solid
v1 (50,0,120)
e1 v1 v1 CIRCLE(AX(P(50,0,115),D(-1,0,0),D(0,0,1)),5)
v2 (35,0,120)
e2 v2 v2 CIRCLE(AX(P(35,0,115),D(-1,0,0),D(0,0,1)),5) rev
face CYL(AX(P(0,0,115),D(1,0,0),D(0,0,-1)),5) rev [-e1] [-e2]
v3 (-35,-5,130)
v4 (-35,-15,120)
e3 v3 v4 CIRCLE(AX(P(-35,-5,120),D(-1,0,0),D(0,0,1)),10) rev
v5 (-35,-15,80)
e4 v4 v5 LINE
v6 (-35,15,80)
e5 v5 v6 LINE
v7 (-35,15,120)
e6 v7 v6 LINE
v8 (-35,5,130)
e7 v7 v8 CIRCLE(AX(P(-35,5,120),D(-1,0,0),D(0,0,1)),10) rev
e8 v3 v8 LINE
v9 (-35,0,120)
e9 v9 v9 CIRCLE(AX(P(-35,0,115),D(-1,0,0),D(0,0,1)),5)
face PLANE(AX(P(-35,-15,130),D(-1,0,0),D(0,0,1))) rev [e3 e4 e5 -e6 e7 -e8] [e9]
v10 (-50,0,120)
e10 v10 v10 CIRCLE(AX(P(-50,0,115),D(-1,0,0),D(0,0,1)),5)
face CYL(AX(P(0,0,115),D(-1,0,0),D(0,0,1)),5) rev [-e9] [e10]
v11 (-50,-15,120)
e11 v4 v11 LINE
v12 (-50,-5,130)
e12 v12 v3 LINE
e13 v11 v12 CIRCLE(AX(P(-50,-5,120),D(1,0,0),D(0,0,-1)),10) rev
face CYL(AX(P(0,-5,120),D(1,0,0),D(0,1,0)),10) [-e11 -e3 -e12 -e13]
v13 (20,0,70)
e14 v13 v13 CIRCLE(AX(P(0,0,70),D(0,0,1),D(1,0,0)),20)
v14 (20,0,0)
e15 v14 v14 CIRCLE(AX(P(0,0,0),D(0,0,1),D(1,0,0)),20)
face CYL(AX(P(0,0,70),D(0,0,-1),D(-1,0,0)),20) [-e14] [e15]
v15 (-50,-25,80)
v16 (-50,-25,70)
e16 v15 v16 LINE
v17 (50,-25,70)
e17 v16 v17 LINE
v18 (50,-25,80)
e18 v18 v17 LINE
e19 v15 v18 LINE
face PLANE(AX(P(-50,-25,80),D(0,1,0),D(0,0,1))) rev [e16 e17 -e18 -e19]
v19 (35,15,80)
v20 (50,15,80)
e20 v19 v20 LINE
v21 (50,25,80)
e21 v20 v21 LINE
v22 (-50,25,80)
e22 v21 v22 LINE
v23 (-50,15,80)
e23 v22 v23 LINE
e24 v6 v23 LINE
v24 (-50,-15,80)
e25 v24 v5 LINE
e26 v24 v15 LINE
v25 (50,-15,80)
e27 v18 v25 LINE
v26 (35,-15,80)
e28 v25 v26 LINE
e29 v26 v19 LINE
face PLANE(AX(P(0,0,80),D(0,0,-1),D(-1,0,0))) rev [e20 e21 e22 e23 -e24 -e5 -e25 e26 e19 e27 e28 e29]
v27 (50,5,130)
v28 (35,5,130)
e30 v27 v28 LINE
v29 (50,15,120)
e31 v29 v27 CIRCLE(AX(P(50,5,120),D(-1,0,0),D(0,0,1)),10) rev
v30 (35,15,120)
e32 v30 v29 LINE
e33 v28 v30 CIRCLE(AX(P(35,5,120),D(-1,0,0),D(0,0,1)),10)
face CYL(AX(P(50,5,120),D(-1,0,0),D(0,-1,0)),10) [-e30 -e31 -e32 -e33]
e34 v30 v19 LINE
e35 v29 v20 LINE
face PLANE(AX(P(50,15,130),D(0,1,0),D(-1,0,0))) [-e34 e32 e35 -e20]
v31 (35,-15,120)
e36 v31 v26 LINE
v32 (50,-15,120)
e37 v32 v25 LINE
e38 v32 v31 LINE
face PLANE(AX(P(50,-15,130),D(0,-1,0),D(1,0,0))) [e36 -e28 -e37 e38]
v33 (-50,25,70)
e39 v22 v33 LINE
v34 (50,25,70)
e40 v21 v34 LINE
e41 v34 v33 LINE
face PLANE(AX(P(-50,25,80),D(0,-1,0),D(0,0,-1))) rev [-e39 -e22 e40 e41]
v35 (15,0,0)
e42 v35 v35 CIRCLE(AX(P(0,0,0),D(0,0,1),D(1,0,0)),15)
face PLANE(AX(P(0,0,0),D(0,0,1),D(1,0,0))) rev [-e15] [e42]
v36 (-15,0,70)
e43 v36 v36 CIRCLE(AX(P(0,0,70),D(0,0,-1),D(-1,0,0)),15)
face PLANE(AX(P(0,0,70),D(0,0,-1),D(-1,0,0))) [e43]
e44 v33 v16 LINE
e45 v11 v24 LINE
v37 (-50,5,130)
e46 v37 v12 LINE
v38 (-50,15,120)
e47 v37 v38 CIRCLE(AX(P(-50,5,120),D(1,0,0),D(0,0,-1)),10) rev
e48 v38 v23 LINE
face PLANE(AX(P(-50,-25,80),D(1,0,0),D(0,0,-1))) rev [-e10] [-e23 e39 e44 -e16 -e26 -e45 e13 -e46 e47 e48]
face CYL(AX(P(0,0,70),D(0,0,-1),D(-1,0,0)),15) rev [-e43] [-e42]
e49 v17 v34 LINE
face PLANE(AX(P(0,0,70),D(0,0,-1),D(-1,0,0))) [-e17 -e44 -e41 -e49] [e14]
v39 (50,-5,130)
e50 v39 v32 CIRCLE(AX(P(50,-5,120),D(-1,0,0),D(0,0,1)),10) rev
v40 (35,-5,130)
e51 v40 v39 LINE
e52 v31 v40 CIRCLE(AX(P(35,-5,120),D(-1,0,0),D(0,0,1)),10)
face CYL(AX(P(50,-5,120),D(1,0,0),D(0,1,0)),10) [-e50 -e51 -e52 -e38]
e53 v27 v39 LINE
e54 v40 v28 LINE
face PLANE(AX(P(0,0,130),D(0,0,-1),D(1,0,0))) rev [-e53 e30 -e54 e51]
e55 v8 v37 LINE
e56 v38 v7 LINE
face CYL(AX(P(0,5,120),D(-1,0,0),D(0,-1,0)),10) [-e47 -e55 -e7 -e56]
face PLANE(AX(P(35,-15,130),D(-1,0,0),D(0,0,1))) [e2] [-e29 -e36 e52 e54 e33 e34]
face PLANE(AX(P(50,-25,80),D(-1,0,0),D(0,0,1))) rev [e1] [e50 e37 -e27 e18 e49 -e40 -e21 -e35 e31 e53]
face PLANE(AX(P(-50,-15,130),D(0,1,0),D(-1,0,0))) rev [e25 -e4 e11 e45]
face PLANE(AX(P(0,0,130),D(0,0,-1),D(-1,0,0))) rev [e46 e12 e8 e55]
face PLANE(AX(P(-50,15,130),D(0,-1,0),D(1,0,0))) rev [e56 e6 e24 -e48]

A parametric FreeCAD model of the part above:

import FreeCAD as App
import Part
import Sketcher
from FreeCAD import Vector
Q = App.Units.Quantity


def edges_at(feature, points):
    """Names of the edges that pass closest to the given points."""
    edges = feature.Shape.Edges
    near = lambda p: min(range(len(edges)), key=lambda i: edges[i].distToShape(Part.Vertex(*p))[0])
    return sorted({f"Edge{near(p) + 1}" for p in points})

doc = App.newDocument("Part")
params = doc.addObject("Spreadsheet::Sheet", "Params")
for row, (alias, value) in enumerate([
    ("sketch1_diameter", "40 mm"),
    ("sketch1_diameter2", "30 mm"),
    ("pad1_length", "70 mm"),
    ("sketch2_width", "100 mm"),
    ("sketch2_height", "50 mm"),
    ("pad2_length", "10 mm"),
    ("sketch3_width", "15 mm"),
    ("sketch3_height", "30 mm"),
    ("pad3_length", "50 mm"),
    ("fillet_radius", "10 mm"),
    ("sketch4_diameter", "10 mm"),
    ("pocket1_length", "50 mm"),
    ("fillet2_radius", "10 mm"),
], start=1):
    params.set(f"A{row}", alias)
    params.set(f"B{row}", "=" + value)
    params.setAlias(f"B{row}", alias)

body = doc.addObject("PartDesign::Body", "Body")

sketch1 = body.newObject("Sketcher::SketchObject", "Sketch")
sketch1.AttachmentSupport = (doc.getObject("XY_Plane"), [""])
sketch1.MapMode = "FlatFace"
sketch1.addGeometry([
    Part.Circle(Vector(0, 0, 0), Vector(0, 0, 1), 20),
    Part.Circle(Vector(0, 0, 0), Vector(0, 0, 1), 15),
], False)
sketch1.addConstraint([
    Sketcher.Constraint("Coincident", 0, 3, -1, 1),
    Sketcher.Constraint("Coincident", 1, 3, -1, 1),
    Sketcher.Constraint("Diameter", 0, Q("40 mm")),
    Sketcher.Constraint("Diameter", 1, Q("30 mm")),
])
sketch1.setExpression("Constraints[2]", "Params.sketch1_diameter")
sketch1.setExpression("Constraints[3]", "Params.sketch1_diameter2")
pad1 = body.newObject("PartDesign::Pad", "Pad")
pad1.Profile = sketch1
pad1.setExpression("Length", "Params.pad1_length")

sketch2 = body.newObject("Sketcher::SketchObject", "Sketch001")
sketch2.AttachmentSupport = (doc.getObject("XY_Plane"), [""])
sketch2.MapMode = "FlatFace"
sketch2.AttachmentOffset = App.Placement(Vector(0, 0, 70), App.Rotation())
sketch2.addGeometry([
    Part.LineSegment(Vector(-50, 25, 0), Vector(-50, -25, 0)),
    Part.LineSegment(Vector(-50, -25, 0), Vector(50, -25, 0)),
    Part.LineSegment(Vector(50, -25, 0), Vector(50, 25, 0)),
    Part.LineSegment(Vector(50, 25, 0), Vector(-50, 25, 0)),
], False)
sketch2.addConstraint([
    Sketcher.Constraint("Coincident", 0, 2, 1, 1),
    Sketcher.Constraint("Coincident", 1, 2, 2, 1),
    Sketcher.Constraint("Coincident", 2, 2, 3, 1),
    Sketcher.Constraint("Coincident", 3, 2, 0, 1),
    Sketcher.Constraint("Vertical", 0),
    Sketcher.Constraint("Horizontal", 1),
    Sketcher.Constraint("Vertical", 2),
    Sketcher.Constraint("Horizontal", 3),
    Sketcher.Constraint("Symmetric", 0, 2, 2, 2, -1, 1),
    Sketcher.Constraint("DistanceX", 1, 1, 1, 2, Q("100 mm")),
    Sketcher.Constraint("DistanceY", 0, 2, 0, 1, Q("50 mm")),
])
sketch2.setExpression("Constraints[9]", "Params.sketch2_width")
sketch2.setExpression("Constraints[10]", "Params.sketch2_height")
pad2 = body.newObject("PartDesign::Pad", "Pad001")
pad2.Profile = sketch2
pad2.setExpression("Length", "Params.pad2_length")

sketch3 = body.newObject("Sketcher::SketchObject", "Sketch002")
sketch3.AttachmentSupport = (doc.getObject("XY_Plane"), [""])
sketch3.MapMode = "FlatFace"
sketch3.AttachmentOffset = App.Placement(Vector(0, 0, 80), App.Rotation())
sketch3.addGeometry([
    Part.LineSegment(Vector(-50, 15, 0), Vector(-50, -15, 0)),
    Part.LineSegment(Vector(-50, -15, 0), Vector(-35, -15, 0)),
    Part.LineSegment(Vector(-35, -15, 0), Vector(-35, 15, 0)),
    Part.LineSegment(Vector(-35, 15, 0), Vector(-50, 15, 0)),
], False)
sketch3.addConstraint([
    Sketcher.Constraint("Coincident", 0, 2, 1, 1),
    Sketcher.Constraint("Coincident", 1, 2, 2, 1),
    Sketcher.Constraint("Coincident", 2, 2, 3, 1),
    Sketcher.Constraint("Coincident", 3, 2, 0, 1),
    Sketcher.Constraint("Vertical", 0),
    Sketcher.Constraint("Horizontal", 1),
    Sketcher.Constraint("Vertical", 2),
    Sketcher.Constraint("Horizontal", 3),
    Sketcher.Constraint("DistanceX", 1, 1, 1, 2, Q("15 mm")),
    Sketcher.Constraint("DistanceY", 0, 2, 0, 1, Q("30 mm")),
    Sketcher.Constraint("DistanceX", 0, 2, -1, 1, Q("50 mm")),
    Sketcher.Constraint("DistanceY", 0, 2, -1, 1, Q("15 mm")),
])
sketch3.setExpression("Constraints[8]", "Params.sketch3_width")
sketch3.setExpression("Constraints[9]", "Params.sketch3_height")
pad3 = body.newObject("PartDesign::Pad", "Pad002")
pad3.Profile = sketch3
pad3.setExpression("Length", "Params.pad3_length")
doc.recompute()

fillet = body.newObject("PartDesign::Fillet", "Fillet")
fillet.Base = (pad3, edges_at(pad3, [(-42.5, 15, 130), (-42.5, -15, 130)]))
fillet.setExpression("Radius", "Params.fillet_radius")

sketch4 = body.newObject("Sketcher::SketchObject", "Sketch003")
sketch4.AttachmentSupport = (doc.getObject("YZ_Plane"), [""])
sketch4.MapMode = "FlatFace"
sketch4.AttachmentOffset = App.Placement(Vector(0, 0, -50), App.Rotation())
sketch4.addGeometry(Part.Circle(Vector(0, 115, 0), Vector(0, 0, 1), 5), False)
sketch4.addConstraint([
    Sketcher.Constraint("PointOnObject", 0, 3, -2),
    Sketcher.Constraint("Diameter", 0, Q("10 mm")),
    Sketcher.Constraint("DistanceY", -1, 1, 0, 3, Q("115 mm")),
])
sketch4.setExpression("Constraints[1]", "Params.sketch4_diameter")
pocket1 = body.newObject("PartDesign::Pocket", "Pocket")
pocket1.Profile = sketch4
pocket1.setExpression("Length", "Params.pocket1_length")
pocket1.Reversed = True
doc.recompute()

mirrored = body.newObject("PartDesign::Mirrored", "Mirrored")
mirrored.Originals = [pad3, pocket1]
mirrored.MirrorPlane = (doc.getObject("YZ_Plane"), [""])
body.Tip = mirrored
doc.recompute()

fillet2 = body.newObject("PartDesign::Fillet", "Fillet001")
fillet2.Base = (mirrored, edges_at(mirrored, [(42.5, 15, 130), (42.5, -15, 130)]))
fillet2.setExpression("Radius", "Params.fillet2_radius")

doc.recompute()
